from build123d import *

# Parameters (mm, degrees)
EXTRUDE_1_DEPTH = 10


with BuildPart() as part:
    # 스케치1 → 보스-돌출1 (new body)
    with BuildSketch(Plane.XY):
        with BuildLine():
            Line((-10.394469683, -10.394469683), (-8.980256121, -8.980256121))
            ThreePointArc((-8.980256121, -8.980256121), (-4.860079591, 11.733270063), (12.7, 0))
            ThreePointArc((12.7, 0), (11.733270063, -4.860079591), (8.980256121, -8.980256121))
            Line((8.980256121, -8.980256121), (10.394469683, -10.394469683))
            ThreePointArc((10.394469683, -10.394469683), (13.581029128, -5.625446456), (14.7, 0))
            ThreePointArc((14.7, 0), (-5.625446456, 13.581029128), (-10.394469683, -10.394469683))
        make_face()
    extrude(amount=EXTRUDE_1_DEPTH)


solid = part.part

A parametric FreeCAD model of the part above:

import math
import FreeCAD as App
import Part
import Sketcher

V = App.Vector
Q = App.Units.Quantity

doc = App.newDocument("Part")
body = doc.addObject("PartDesign::Body", "Body")

# Sketch on XY plane
sketch1 = body.newObject("Sketcher::SketchObject", "Sketch")
sketch1.AttachmentSupport = (doc.getObject("XY_Plane"), [""])
sketch1.MapMode = "FlatFace"
sketch1.addGeometry(Part.LineSegment(V(-10.39447, -10.39447, 0), V(-8.980256, -8.980256, 0)), False)
sketch1.addGeometry(Part.ArcOfCircle(Part.Circle(V(0, 0, 0), V(0, 0, 1), 12.7), math.radians(0), math.radians(225)), False)
sketch1.addGeometry(Part.ArcOfCircle(Part.Circle(V(0, 0, 0), V(0, 0, 1), 12.7), math.radians(-45), math.radians(0)), False)
sketch1.addGeometry(Part.LineSegment(V(8.980256, -8.980256, 0), V(10.39447, -10.39447, 0)), False)
sketch1.addGeometry(Part.ArcOfCircle(Part.Circle(V(0, 0, 0), V(0, 0, 1), 14.7), math.radians(-45), math.radians(0)), False)
sketch1.addGeometry(Part.ArcOfCircle(Part.Circle(V(0, 0, 0), V(0, 0, 1), 14.7), math.radians(0), math.radians(225)), False)
sketch1.addConstraint(Sketcher.Constraint("Coincident", 0, 2, 1, 2))
sketch1.addConstraint(Sketcher.Constraint("Tangent", 1, 1, 2, 2))
sketch1.addConstraint(Sketcher.Constraint("Coincident", 2, 1, 3, 1))
sketch1.addConstraint(Sketcher.Constraint("Coincident", 3, 2, 4, 1))
sketch1.addConstraint(Sketcher.Constraint("Tangent", 4, 2, 5, 1))
sketch1.addConstraint(Sketcher.Constraint("Coincident", 5, 2, 0, 1))
sketch1.addConstraint(Sketcher.Constraint("Coincident", 1, 3, -1, 1))
sketch1.addConstraint(Sketcher.Constraint("Coincident", 4, 3, -1, 1))
sketch1.addConstraint(Sketcher.Constraint("Equal", 1, 2))
sketch1.addConstraint(Sketcher.Constraint("Equal", 4, 5))
sketch1.addConstraint(Sketcher.Constraint("PointOnObject", 1, 1, -1))
sketch1.addConstraint(Sketcher.Constraint("PointOnObject", 4, 2, -1))
sketch1.addConstraint(Sketcher.Constraint("Perpendicular", 0, 3))
sketch1.addConstraint(Sketcher.Constraint("Horizontal", 0, 2, 2, 1))
sketch1.addConstraint(Sketcher.Constraint("Horizontal", 3, 2, 5, 2))
sketch1.addConstraint(Sketcher.Constraint("Radius", 1, Q("12.7 mm")))
sketch1.addConstraint(Sketcher.Constraint("Radius", 4, Q("14.7 mm")))
sketch1.addConstraint(Sketcher.Constraint("DistanceX", -1, 1, 3, 2, Q("10.39447 mm")))
pad1 = body.newObject("PartDesign::Pad", "Pad")
pad1.Profile = sketch1
pad1.Length = 10

doc.recompute()
